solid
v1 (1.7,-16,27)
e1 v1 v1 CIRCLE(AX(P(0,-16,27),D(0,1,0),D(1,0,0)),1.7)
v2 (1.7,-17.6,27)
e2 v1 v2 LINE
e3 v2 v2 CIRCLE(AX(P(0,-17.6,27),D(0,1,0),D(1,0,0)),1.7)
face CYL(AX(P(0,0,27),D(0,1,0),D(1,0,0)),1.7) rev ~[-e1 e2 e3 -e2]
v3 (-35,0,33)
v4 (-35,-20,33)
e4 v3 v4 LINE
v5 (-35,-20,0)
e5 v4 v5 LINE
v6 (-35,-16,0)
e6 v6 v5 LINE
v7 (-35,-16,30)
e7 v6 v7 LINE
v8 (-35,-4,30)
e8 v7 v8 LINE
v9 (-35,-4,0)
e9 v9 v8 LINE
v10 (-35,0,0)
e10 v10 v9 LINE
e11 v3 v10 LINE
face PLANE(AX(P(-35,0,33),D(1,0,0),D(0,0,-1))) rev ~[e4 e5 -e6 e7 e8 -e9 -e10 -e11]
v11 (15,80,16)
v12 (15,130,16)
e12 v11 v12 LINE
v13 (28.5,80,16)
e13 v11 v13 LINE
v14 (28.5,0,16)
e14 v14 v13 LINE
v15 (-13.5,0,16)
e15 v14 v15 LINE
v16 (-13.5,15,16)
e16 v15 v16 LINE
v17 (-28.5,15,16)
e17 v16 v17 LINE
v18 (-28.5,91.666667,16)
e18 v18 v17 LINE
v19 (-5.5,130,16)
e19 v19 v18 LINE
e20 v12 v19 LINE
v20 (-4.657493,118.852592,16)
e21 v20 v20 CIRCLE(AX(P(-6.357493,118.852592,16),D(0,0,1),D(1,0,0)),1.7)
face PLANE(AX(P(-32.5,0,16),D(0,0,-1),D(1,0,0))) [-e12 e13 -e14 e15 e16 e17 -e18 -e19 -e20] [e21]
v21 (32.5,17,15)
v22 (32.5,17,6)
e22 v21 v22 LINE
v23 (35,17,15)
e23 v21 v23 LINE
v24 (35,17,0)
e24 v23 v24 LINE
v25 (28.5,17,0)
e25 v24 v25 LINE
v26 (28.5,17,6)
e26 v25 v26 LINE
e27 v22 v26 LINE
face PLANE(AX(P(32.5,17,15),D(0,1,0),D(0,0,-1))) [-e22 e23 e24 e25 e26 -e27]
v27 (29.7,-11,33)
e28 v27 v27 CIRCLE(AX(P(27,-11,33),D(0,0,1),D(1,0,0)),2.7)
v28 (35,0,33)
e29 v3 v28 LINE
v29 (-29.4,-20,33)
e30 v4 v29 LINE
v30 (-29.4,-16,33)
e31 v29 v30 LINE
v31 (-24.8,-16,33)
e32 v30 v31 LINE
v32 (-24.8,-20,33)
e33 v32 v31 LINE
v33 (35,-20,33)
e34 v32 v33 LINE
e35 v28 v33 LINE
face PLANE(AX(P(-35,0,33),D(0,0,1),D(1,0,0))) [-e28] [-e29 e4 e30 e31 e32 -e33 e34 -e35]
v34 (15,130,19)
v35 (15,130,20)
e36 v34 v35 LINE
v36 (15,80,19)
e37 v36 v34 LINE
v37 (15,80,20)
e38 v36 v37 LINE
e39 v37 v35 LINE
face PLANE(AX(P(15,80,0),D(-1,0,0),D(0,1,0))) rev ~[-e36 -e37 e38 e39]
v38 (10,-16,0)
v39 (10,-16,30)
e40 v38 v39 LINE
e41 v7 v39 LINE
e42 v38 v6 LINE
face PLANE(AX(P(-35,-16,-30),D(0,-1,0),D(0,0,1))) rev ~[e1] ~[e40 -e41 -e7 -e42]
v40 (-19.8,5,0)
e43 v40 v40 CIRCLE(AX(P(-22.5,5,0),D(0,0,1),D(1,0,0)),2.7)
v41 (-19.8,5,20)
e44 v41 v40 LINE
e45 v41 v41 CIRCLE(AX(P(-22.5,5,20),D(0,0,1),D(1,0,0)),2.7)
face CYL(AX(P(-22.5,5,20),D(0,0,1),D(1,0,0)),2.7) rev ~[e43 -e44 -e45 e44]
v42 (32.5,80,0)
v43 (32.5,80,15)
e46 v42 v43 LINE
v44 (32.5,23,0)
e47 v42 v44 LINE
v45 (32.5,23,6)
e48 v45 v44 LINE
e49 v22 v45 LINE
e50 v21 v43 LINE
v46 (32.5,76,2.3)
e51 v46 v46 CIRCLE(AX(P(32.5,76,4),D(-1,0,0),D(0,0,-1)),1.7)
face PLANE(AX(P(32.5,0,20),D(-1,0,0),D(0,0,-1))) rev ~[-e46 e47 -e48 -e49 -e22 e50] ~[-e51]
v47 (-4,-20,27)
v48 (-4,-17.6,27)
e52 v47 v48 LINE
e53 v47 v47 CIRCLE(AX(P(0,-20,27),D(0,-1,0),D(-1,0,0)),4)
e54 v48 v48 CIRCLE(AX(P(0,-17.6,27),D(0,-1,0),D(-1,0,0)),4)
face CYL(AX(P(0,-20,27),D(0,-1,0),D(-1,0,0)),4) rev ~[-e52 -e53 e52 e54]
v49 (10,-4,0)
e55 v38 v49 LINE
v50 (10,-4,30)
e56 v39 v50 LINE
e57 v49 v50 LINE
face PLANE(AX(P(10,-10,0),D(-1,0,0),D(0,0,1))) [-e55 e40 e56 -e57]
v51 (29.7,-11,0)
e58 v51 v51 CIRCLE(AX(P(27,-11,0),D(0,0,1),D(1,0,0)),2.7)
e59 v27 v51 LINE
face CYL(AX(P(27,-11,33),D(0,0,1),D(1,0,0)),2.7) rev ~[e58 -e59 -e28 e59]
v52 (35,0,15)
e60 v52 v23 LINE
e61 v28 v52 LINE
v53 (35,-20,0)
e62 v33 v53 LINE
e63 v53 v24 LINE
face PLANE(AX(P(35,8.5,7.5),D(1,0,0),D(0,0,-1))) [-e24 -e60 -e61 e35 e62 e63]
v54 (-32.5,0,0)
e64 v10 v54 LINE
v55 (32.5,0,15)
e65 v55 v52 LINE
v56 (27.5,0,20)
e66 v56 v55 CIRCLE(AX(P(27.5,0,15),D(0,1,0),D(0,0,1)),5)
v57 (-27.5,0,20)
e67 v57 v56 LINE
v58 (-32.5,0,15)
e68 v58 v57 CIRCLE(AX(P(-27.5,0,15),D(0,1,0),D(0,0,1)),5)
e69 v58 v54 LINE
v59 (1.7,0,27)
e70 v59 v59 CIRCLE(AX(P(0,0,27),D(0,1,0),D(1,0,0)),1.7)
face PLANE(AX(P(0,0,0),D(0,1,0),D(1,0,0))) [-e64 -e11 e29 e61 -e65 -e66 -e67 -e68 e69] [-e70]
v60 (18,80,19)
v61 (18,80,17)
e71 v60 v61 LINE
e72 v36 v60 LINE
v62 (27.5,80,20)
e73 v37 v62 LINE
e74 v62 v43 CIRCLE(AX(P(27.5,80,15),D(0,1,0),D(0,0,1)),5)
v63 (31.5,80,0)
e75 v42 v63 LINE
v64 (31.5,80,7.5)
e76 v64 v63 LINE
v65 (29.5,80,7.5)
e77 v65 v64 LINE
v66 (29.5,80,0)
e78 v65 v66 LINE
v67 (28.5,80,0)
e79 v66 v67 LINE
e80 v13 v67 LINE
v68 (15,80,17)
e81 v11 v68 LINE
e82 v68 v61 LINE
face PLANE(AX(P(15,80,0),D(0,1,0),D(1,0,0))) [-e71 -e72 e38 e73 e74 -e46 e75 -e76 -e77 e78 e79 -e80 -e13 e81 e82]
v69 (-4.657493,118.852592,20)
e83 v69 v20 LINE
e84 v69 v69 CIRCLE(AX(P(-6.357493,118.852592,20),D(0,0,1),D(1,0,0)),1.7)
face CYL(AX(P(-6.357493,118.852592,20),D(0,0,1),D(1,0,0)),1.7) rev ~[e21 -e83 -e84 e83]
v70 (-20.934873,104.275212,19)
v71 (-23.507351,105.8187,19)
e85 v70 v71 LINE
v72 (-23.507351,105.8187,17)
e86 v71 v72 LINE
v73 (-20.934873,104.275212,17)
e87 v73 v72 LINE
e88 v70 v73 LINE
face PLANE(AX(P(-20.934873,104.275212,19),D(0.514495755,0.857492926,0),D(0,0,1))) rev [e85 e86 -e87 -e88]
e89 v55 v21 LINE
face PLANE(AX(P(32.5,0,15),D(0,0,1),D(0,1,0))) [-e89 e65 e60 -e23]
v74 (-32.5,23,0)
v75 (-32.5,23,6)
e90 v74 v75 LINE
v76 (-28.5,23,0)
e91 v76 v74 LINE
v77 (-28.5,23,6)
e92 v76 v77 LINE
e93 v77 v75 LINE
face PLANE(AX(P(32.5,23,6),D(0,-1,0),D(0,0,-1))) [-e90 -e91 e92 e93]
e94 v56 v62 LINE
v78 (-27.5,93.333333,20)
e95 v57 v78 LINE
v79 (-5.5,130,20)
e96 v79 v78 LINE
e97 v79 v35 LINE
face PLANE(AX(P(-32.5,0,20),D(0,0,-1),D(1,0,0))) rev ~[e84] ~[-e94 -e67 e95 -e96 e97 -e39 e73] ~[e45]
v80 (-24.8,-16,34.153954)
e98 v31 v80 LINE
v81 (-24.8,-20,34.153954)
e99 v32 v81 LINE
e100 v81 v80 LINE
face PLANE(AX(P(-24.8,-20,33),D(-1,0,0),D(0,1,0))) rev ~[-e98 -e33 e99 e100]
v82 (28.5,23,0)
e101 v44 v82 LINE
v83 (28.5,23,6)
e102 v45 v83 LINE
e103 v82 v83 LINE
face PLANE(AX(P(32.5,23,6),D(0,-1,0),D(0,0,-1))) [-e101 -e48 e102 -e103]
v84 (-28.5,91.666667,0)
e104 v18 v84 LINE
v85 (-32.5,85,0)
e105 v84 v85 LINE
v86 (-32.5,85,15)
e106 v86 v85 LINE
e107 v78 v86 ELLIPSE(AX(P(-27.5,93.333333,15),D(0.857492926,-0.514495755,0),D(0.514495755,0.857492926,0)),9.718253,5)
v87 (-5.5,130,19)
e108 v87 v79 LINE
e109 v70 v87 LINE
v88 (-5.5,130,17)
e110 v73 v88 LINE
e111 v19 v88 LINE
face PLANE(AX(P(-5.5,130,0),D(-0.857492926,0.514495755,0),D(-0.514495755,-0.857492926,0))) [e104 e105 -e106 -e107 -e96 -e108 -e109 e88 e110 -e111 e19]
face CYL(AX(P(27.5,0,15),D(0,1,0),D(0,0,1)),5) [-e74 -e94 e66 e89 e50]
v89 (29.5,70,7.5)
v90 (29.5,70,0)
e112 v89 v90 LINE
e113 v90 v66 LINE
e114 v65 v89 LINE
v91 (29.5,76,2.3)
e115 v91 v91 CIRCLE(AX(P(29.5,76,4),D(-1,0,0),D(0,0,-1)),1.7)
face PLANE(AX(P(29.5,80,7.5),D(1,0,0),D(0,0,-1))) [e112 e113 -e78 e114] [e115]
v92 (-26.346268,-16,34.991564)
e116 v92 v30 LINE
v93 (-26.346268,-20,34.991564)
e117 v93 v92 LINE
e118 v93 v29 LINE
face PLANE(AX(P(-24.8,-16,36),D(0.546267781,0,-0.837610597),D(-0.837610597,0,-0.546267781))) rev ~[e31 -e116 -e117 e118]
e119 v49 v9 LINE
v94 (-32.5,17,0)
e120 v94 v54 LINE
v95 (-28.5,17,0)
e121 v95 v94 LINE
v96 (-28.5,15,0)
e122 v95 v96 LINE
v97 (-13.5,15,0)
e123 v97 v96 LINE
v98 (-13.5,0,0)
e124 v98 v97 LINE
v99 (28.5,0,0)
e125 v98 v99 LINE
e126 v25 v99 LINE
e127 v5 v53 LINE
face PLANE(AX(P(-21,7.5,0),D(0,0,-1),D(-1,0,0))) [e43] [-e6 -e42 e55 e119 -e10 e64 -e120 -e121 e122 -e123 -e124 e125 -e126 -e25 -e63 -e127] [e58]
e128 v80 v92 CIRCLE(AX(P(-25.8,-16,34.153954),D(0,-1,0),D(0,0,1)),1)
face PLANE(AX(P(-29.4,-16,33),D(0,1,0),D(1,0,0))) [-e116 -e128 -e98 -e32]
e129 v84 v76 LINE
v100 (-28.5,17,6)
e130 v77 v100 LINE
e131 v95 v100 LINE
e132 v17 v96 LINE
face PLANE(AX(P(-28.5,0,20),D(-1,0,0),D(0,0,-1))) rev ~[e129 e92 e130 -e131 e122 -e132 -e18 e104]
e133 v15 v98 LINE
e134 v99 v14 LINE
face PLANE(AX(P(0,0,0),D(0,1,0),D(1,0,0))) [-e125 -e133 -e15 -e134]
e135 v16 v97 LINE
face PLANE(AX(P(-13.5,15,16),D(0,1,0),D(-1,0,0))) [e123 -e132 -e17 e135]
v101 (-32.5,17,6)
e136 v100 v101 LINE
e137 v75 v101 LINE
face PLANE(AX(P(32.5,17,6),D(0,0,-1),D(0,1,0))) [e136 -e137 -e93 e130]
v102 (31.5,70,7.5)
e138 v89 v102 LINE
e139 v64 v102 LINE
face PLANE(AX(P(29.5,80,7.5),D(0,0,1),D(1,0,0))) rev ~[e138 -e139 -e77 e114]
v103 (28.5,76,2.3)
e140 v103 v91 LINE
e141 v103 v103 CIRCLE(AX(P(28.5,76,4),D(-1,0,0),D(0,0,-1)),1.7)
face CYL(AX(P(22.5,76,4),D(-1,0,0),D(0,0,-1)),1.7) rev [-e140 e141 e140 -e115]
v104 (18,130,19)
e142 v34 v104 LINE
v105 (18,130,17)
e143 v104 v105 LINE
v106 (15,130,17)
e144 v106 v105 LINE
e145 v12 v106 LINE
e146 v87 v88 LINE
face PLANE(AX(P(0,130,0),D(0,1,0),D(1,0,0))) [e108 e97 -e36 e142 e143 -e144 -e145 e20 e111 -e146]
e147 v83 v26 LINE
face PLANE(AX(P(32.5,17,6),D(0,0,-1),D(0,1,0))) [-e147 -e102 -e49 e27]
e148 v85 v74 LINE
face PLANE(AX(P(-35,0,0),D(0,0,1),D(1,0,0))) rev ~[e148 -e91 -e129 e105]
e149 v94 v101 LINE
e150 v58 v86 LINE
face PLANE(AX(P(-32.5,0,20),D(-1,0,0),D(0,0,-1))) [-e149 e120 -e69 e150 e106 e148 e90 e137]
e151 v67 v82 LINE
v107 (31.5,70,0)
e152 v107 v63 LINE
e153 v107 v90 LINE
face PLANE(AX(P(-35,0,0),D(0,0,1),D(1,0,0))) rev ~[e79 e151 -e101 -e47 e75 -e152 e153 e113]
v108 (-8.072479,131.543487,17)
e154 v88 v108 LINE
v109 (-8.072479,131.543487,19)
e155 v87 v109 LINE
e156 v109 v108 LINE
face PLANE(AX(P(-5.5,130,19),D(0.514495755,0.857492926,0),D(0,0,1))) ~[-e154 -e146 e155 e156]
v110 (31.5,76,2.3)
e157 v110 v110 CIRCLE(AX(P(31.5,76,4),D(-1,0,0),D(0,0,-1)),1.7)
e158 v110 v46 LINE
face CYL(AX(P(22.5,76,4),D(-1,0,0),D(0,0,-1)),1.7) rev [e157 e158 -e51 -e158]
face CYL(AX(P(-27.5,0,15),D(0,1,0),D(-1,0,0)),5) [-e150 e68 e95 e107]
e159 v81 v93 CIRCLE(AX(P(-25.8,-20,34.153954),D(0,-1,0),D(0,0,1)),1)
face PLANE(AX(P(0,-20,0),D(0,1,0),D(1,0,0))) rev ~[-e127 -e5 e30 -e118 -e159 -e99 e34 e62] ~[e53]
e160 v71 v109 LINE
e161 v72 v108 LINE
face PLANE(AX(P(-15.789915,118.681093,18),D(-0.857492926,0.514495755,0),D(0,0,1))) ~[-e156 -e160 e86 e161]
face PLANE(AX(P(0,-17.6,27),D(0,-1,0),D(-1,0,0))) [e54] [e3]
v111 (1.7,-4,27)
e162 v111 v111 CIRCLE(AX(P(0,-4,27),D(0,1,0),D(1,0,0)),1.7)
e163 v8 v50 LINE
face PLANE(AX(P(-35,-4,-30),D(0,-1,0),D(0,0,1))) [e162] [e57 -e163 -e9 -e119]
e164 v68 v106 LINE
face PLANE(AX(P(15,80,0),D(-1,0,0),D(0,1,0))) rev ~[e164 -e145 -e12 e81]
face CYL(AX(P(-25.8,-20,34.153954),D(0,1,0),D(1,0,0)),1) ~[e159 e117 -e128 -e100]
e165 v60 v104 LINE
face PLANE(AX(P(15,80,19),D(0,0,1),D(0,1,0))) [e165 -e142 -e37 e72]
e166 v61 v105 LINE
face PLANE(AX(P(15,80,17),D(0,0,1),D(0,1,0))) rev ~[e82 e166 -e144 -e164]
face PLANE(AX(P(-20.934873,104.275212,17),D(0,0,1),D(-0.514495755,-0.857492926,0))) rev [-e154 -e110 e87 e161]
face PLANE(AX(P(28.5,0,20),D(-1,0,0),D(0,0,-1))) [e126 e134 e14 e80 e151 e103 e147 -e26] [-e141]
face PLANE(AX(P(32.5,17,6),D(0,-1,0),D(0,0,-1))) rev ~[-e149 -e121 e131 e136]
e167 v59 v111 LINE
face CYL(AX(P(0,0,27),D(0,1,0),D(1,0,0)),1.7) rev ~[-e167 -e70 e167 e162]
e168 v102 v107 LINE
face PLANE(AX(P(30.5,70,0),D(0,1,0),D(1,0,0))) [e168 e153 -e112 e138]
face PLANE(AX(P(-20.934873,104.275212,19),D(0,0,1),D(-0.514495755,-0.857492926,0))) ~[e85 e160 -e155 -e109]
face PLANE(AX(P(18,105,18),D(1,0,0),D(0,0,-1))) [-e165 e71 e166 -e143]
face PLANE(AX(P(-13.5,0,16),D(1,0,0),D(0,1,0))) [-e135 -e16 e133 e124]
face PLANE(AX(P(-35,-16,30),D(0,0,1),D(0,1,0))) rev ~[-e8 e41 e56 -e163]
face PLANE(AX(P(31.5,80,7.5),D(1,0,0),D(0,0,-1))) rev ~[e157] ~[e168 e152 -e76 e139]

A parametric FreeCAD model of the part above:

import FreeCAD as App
import Part
import Sketcher


def edges_at(feature, points):
    """Names of the edges that pass closest to the given points."""
    edges = feature.Shape.Edges
    near = lambda p: min(range(len(edges)), key=lambda i: edges[i].distToShape(Part.Vertex(*p))[0])
    return sorted({f"Edge{near(p) + 1}" for p in points})


def faces_at(feature, points):
    """Names of the faces that lie closest to the given points."""
    faces = feature.Shape.Faces
    near = lambda p: min(range(len(faces)), key=lambda i: faces[i].distToShape(Part.Vertex(*p))[0])
    return sorted({f"Face{near(p) + 1}" for p in points})

doc = App.newDocument("Part")
body = doc.addObject("PartDesign::Body", "Body")

# Sketch on XZ plane
sketch1 = body.newObject("Sketcher::SketchObject", "Sketch")
sketch1.AttachmentSupport = (doc.getObject("XZ_Plane"), [""])
sketch1.MapMode = "FlatFace"
sketch1.addGeometry([
    Part.LineSegment(App.Vector(-32, -20, 0), App.Vector(-32, 20, 0)),
    Part.LineSegment(App.Vector(-32, 20, 0), App.Vector(32, 20, 0)),
    Part.LineSegment(App.Vector(32, 20, 0), App.Vector(32, -20, 0)),
    Part.LineSegment(App.Vector(32, -20, 0), App.Vector(-32, -20, 0)),
], False)
sketch1.addConstraint([
    Sketcher.Constraint("Coincident", 0, 2, 1, 1),
    Sketcher.Constraint("Coincident", 1, 2, 2, 1),
    Sketcher.Constraint("Coincident", 2, 2, 3, 1),
    Sketcher.Constraint("Coincident", 3, 2, 0, 1),
    Sketcher.Constraint("Vertical", 0),
    Sketcher.Constraint("Horizontal", 1),
    Sketcher.Constraint("Vertical", 2),
    Sketcher.Constraint("Horizontal", 3),
    Sketcher.Constraint("Symmetric", 0, 2, 2, 2, -1, 1),
    Sketcher.Constraint("DistanceX", 1, 1, 1, 2, 65.0),
    Sketcher.Constraint("DistanceY", 0, 1, 0, 2, 40.0),
])
pad1 = body.newObject("PartDesign::Pad", "Pad")
pad1.Profile = sketch1
pad1.Length = 130
pad1.Reversed = True
doc.recompute()

thickness = body.newObject("PartDesign::Thickness", "Thickness")
thickness.Base = (pad1, faces_at(pad1, [(0, 130, 0), (0, 0, 0)]))
thickness.Value = 4
thickness.Reversed = True
thickness.Join = "Intersection"
doc.recompute()

fillet = body.newObject("PartDesign::Fillet", "Fillet")
fillet.Base = (thickness, edges_at(thickness, [
    (32.5, 65, 20),
    (-32.5, 65, 20),
    (-32.5, 65, -20),
    (32.5, 65, -20),
]))
fillet.Radius = 5

# Sketch on XY plane
sketch2 = body.newObject("Sketcher::SketchObject", "Sketch001")
sketch2.AttachmentSupport = (doc.getObject("XY_Plane"), [""])
sketch2.MapMode = "FlatFace"
sketch2.addGeometry([
    Part.LineSegment(App.Vector(-32, 85, 0), App.Vector(-6, 130, 0)),
    Part.LineSegment(App.Vector(-6, 130, 0), App.Vector(-32, 130, 0)),
    Part.LineSegment(App.Vector(-32, 130, 0), App.Vector(-32, 85, 0)),
], False)
sketch2.addConstraint([
    Sketcher.Constraint("Coincident", 0, 2, 1, 1),
    Sketcher.Constraint("Coincident", 1, 2, 2, 1),
    Sketcher.Constraint("Coincident", 2, 2, 0, 1),
    Sketcher.Constraint("Horizontal", 1),
    Sketcher.Constraint("Vertical", 2),
    Sketcher.Constraint("DistanceX", 1, 2, 1, 1, 27.0),
    Sketcher.Constraint("DistanceY", 2, 2, 2, 1, 45.0),
    Sketcher.Constraint("DistanceY", -1, 1, 0, 2, 130.0),
    Sketcher.Constraint("DistanceX", 0, 2, -1, 1, 5.5),
])
pocket1 = body.newObject("PartDesign::Pocket", "Pocket")
pocket1.Profile = sketch2
pocket1.Type = "ThroughAll"
pocket1.Midplane = True

# Sketch on XY plane
sketch3 = body.newObject("Sketcher::SketchObject", "Sketch002")
sketch3.AttachmentSupport = (doc.getObject("XY_Plane"), [""])
sketch3.MapMode = "FlatFace"
sketch3.addGeometry([
    Part.LineSegment(App.Vector(15, 130, 0), App.Vector(15, 80, 0)),
    Part.LineSegment(App.Vector(15, 80, 0), App.Vector(32, 80, 0)),
    Part.LineSegment(App.Vector(32, 80, 0), App.Vector(32, 130, 0)),
    Part.LineSegment(App.Vector(32, 130, 0), App.Vector(15, 130, 0)),
], False)
sketch3.addConstraint([
    Sketcher.Constraint("Coincident", 0, 2, 1, 1),
    Sketcher.Constraint("Coincident", 1, 2, 2, 1),
    Sketcher.Constraint("Coincident", 2, 2, 3, 1),
    Sketcher.Constraint("Coincident", 3, 2, 0, 1),
    Sketcher.Constraint("Vertical", 0),
    Sketcher.Constraint("Horizontal", 1),
    Sketcher.Constraint("Vertical", 2),
    Sketcher.Constraint("Horizontal", 3),
    Sketcher.Constraint("DistanceY", 0, 2, 0, 1, 50.0),
    Sketcher.Constraint("DistanceX", 1, 1, 1, 2, 17.5),
    Sketcher.Constraint("DistanceX", -1, 1, 0, 2, 15.0),
    Sketcher.Constraint("DistanceY", -1, 1, 0, 2, 80.0),
])
pocket2 = body.newObject("PartDesign::Pocket", "Pocket001")
pocket2.Profile = sketch3
pocket2.Type = "ThroughAll"
pocket2.Midplane = True

# Sketch on YZ plane
sketch4 = body.newObject("Sketcher::SketchObject", "Sketch003")
sketch4.AttachmentSupport = (doc.getObject("YZ_Plane"), [""])
sketch4.MapMode = "FlatFace"
sketch4.AttachmentOffset = App.Placement(App.Vector(0, 0, 15), App.Rotation())
sketch4.addGeometry([
    Part.LineSegment(App.Vector(130, 19, 0), App.Vector(80, 19, 0)),
    Part.LineSegment(App.Vector(80, 19, 0), App.Vector(80, 17, 0)),
    Part.LineSegment(App.Vector(80, 17, 0), App.Vector(130, 17, 0)),
    Part.LineSegment(App.Vector(130, 17, 0), App.Vector(130, 19, 0)),
], False)
sketch4.addConstraint([
    Sketcher.Constraint("Coincident", 0, 2, 1, 1),
    Sketcher.Constraint("Coincident", 1, 2, 2, 1),
    Sketcher.Constraint("Coincident", 2, 2, 3, 1),
    Sketcher.Constraint("Coincident", 3, 2, 0, 1),
    Sketcher.Constraint("Horizontal", 0),
    Sketcher.Constraint("Vertical", 1),
    Sketcher.Constraint("Horizontal", 2),
    Sketcher.Constraint("Vertical", 3),
    Sketcher.Constraint("DistanceX", 0, 2, 0, 1, 50.0),
    Sketcher.Constraint("DistanceY", 1, 2, 1, 1, 2.0),
    Sketcher.Constraint("DistanceX", -1, 1, 0, 2, 80.0),
    Sketcher.Constraint("DistanceY", -1, 1, 0, 2, 19.0),
])
pad2 = body.newObject("PartDesign::Pad", "Pad001")
pad2.Profile = sketch4
pad2.Length = 3
doc.recompute()

mirrored = body.newObject("PartDesign::Mirrored", "Mirrored")
mirrored.Originals = [pad2]
mirrored.MirrorPlane = (doc.getObject("XY_Plane"), [""])
body.Tip = mirrored

# Sketch on an angled plane
sketch5 = body.newObject("Sketcher::SketchObject", "Sketch004")
sketch5.Placement = App.Placement(App.Vector(-61.397059, 36.838235, 0), App.Rotation(App.Vector(0, 0, 1), App.Vector(0.514495755, 0.857492926, 0), App.Vector(-0.857492926, 0.514495755, 0), "ZXY"))
sketch5.addGeometry([
    Part.LineSegment(App.Vector(-19, 108.6, 0), App.Vector(-19, 78.6, 0)),
    Part.LineSegment(App.Vector(-19, 78.6, 0), App.Vector(-17, 78.6, 0)),
    Part.LineSegment(App.Vector(-17, 78.6, 0), App.Vector(-17, 108.6, 0)),
    Part.LineSegment(App.Vector(-17, 108.6, 0), App.Vector(-19, 108.6, 0)),
], False)
sketch5.addConstraint([
    Sketcher.Constraint("Coincident", 0, 2, 1, 1),
    Sketcher.Constraint("Coincident", 1, 2, 2, 1),
    Sketcher.Constraint("Coincident", 2, 2, 3, 1),
    Sketcher.Constraint("Coincident", 3, 2, 0, 1),
    Sketcher.Constraint("Vertical", 0),
    Sketcher.Constraint("Horizontal", 1),
    Sketcher.Constraint("Vertical", 2),
    Sketcher.Constraint("Horizontal", 3),
    Sketcher.Constraint("DistanceX", 1, 1, 1, 2, 2.0),
    Sketcher.Constraint("DistanceY", 0, 2, 0, 1, 30.0),
    Sketcher.Constraint("DistanceX", 0, 2, -1, 1, 19.0),
    Sketcher.Constraint("DistanceY", -1, 1, 0, 2, 78.644354),
])
pad3 = body.newObject("PartDesign::Pad", "Pad002")
pad3.Profile = sketch5
pad3.Length = 3
doc.recompute()

mirrored2 = body.newObject("PartDesign::Mirrored", "Mirrored001")
mirrored2.Originals = [pad3]
mirrored2.MirrorPlane = (doc.getObject("XY_Plane"), [""])
body.Tip = mirrored2

# Sketch on XZ plane
sketch6 = body.newObject("Sketcher::SketchObject", "Sketch005")
sketch6.AttachmentSupport = (doc.getObject("XZ_Plane"), [""])
sketch6.MapMode = "FlatFace"
sketch6.addGeometry([
    Part.LineSegment(App.Vector(-35, -33, 0), App.Vector(-35, 33, 0)),
    Part.LineSegment(App.Vector(-35, 33, 0), App.Vector(35, 33, 0)),
    Part.LineSegment(App.Vector(35, 33, 0), App.Vector(35, -33, 0)),
    Part.LineSegment(App.Vector(35, -33, 0), App.Vector(-35, -33, 0)),
], False)
sketch6.addConstraint([
    Sketcher.Constraint("Coincident", 0, 2, 1, 1),
    Sketcher.Constraint("Coincident", 1, 2, 2, 1),
    Sketcher.Constraint("Coincident", 2, 2, 3, 1),
    Sketcher.Constraint("Coincident", 3, 2, 0, 1),
    Sketcher.Constraint("Vertical", 0),
    Sketcher.Constraint("Horizontal", 1),
    Sketcher.Constraint("Vertical", 2),
    Sketcher.Constraint("Horizontal", 3),
    Sketcher.Constraint("Symmetric", 0, 2, 2, 2, -1, 1),
    Sketcher.Constraint("DistanceX", 1, 1, 1, 2, 70.0),
    Sketcher.Constraint("DistanceY", 0, 1, 0, 2, 66.0),
])
pad4 = body.newObject("PartDesign::Pad", "Pad003")
pad4.Profile = sketch6
pad4.Length = 20

# Sketch on YZ plane
sketch7 = body.newObject("Sketcher::SketchObject", "Sketch006")
sketch7.AttachmentSupport = (doc.getObject("YZ_Plane"), [""])
sketch7.MapMode = "FlatFace"
sketch7.AttachmentOffset = App.Placement(App.Vector(0, 0, -35), App.Rotation())
sketch7.addGeometry([
    Part.LineSegment(App.Vector(-4, -30, 0), App.Vector(-16, -30, 0)),
    Part.LineSegment(App.Vector(-16, -30, 0), App.Vector(-16, 30, 0)),
    Part.LineSegment(App.Vector(-16, 30, 0), App.Vector(-4, 30, 0)),
    Part.LineSegment(App.Vector(-4, 30, 0), App.Vector(-4, -30, 0)),
], False)
sketch7.addConstraint([
    Sketcher.Constraint("Coincident", 0, 2, 1, 1),
    Sketcher.Constraint("Coincident", 1, 2, 2, 1),
    Sketcher.Constraint("Coincident", 2, 2, 3, 1),
    Sketcher.Constraint("Coincident", 3, 2, 0, 1),
    Sketcher.Constraint("Horizontal", 0),
    Sketcher.Constraint("Vertical", 1),
    Sketcher.Constraint("Horizontal", 2),
    Sketcher.Constraint("Vertical", 3),
    Sketcher.Constraint("DistanceX", 0, 2, 0, 1, 12.0),
    Sketcher.Constraint("DistanceY", 1, 1, 1, 2, 60.0),
    Sketcher.Constraint("DistanceX", 0, 2, -1, 1, 16.0),
    Sketcher.Constraint("DistanceY", 0, 2, -1, 1, 30.0),
])
pocket3 = body.newObject("PartDesign::Pocket", "Pocket002")
pocket3.Profile = sketch7
pocket3.Length = 45
pocket3.Reversed = True

# Sketch on XZ plane
sketch8 = body.newObject("Sketcher::SketchObject", "Sketch007")
sketch8.AttachmentSupport = (doc.getObject("XZ_Plane"), [""])
sketch8.MapMode = "FlatFace"
sketch8.AttachmentOffset = App.Placement(App.Vector(0, 0, -80), App.Rotation())
sketch8.addGeometry([
    Part.LineSegment(App.Vector(29.5, -7.5, 0), App.Vector(29.5, 7.5, 0)),
    Part.LineSegment(App.Vector(29.5, 7.5, 0), App.Vector(31.5, 7.5, 0)),
    Part.LineSegment(App.Vector(31.5, 7.5, 0), App.Vector(31.5, -7.5, 0)),
    Part.LineSegment(App.Vector(31.5, -7.5, 0), App.Vector(29.5, -7.5, 0)),
], False)
sketch8.addConstraint([
    Sketcher.Constraint("Coincident", 0, 2, 1, 1),
    Sketcher.Constraint("Coincident", 1, 2, 2, 1),
    Sketcher.Constraint("Coincident", 2, 2, 3, 1),
    Sketcher.Constraint("Coincident", 3, 2, 0, 1),
    Sketcher.Constraint("Vertical", 0),
    Sketcher.Constraint("Horizontal", 1),
    Sketcher.Constraint("Vertical", 2),
    Sketcher.Constraint("Horizontal", 3),
    Sketcher.Constraint("DistanceX", 1, 1, 1, 2, 2.0),
    Sketcher.Constraint("DistanceY", 0, 1, 0, 2, 15.0),
    Sketcher.Constraint("DistanceX", -1, 1, 0, 2, 29.5),
    Sketcher.Constraint("DistanceY", -1, 1, 0, 2, 7.5),
])
pocket4 = body.newObject("PartDesign::Pocket", "Pocket003")
pocket4.Profile = sketch8
pocket4.Length = 10
pocket4.Reversed = True

# Sketch on YZ plane
sketch9 = body.newObject("Sketcher::SketchObject", "Sketch008")
sketch9.AttachmentSupport = (doc.getObject("YZ_Plane"), [""])
sketch9.MapMode = "FlatFace"
sketch9.AttachmentOffset = App.Placement(App.Vector(0, 0, 22.5), App.Rotation())
sketch9.addGeometry(Part.Circle(App.Vector(76, 4, 0), App.Vector(0, 0, 1), 1.7), False)
sketch9.addConstraint([
    Sketcher.Constraint("Diameter", 0, 3.4),
    Sketcher.Constraint("DistanceX", -1, 1, 0, 3, 76.0),
    Sketcher.Constraint("DistanceY", -1, 1, 0, 3, 4.0),
])
pocket5 = body.newObject("PartDesign::Pocket", "Pocket004")
pocket5.Profile = sketch9
pocket5.Length = 13.5
pocket5.Reversed = True
doc.recompute()

mirrored3 = body.newObject("PartDesign::Mirrored", "Mirrored002")
mirrored3.Originals = [pocket5]
mirrored3.MirrorPlane = (doc.getObject("XY_Plane"), [""])
body.Tip = mirrored3

# Sketch on XZ plane
sketch10 = body.newObject("Sketcher::SketchObject", "Sketch009")
sketch10.AttachmentSupport = (doc.getObject("XZ_Plane"), [""])
sketch10.MapMode = "FlatFace"
sketch10.addGeometry([
    Part.LineSegment(App.Vector(-35, -33, 0), App.Vector(-35, 0, 0)),
    Part.LineSegment(App.Vector(-35, 0, 0), App.Vector(35, 0, 0)),
    Part.LineSegment(App.Vector(35, 0, 0), App.Vector(35, -33, 0)),
    Part.LineSegment(App.Vector(35, -33, 0), App.Vector(-35, -33, 0)),
], False)
sketch10.addConstraint([
    Sketcher.Constraint("Coincident", 0, 2, 1, 1),
    Sketcher.Constraint("Coincident", 1, 2, 2, 1),
    Sketcher.Constraint("Coincident", 2, 2, 3, 1),
    Sketcher.Constraint("Coincident", 3, 2, 0, 1),
    Sketcher.Constraint("Vertical", 0),
    Sketcher.Constraint("Horizontal", 1),
    Sketcher.Constraint("Vertical", 2),
    Sketcher.Constraint("Horizontal", 3),
    Sketcher.Constraint("Symmetric", 0, 2, 1, 2, -1, 1),
    Sketcher.Constraint("DistanceX", 1, 1, 1, 2, 70.0),
    Sketcher.Constraint("DistanceY", 0, 1, 0, 2, 33.0),
])
pocket6 = body.newObject("PartDesign::Pocket", "Pocket005")
pocket6.Profile = sketch10
pocket6.Type = "ThroughAll"
pocket6.Midplane = True

# Sketch on XY plane
sketch11 = body.newObject("Sketcher::SketchObject", "Sketch010")
sketch11.AttachmentSupport = (doc.getObject("XY_Plane"), [""])
sketch11.MapMode = "FlatFace"
sketch11.AttachmentOffset = App.Placement(App.Vector(0, 0, 33), App.Rotation())
sketch11.addGeometry(Part.Circle(App.Vector(27, -11, 0), App.Vector(0, 0, 1), 2.7), False)
sketch11.addConstraint([
    Sketcher.Constraint("Diameter", 0, 5.4),
    Sketcher.Constraint("DistanceX", -1, 1, 0, 3, 27.0),
    Sketcher.Constraint("DistanceY", 0, 3, -1, 1, 11.0),
])
pocket7 = body.newObject("PartDesign::Pocket", "Pocket006")
pocket7.Profile = sketch11
pocket7.Type = "ThroughAll"
pocket7.Midplane = True

# Sketch on XZ plane
sketch12 = body.newObject("Sketcher::SketchObject", "Sketch011")
sketch12.AttachmentSupport = (doc.getObject("XZ_Plane"), [""])
sketch12.MapMode = "FlatFace"
sketch12.addGeometry(Part.Circle(App.Vector(0, 27, 0), App.Vector(0, 0, 1), 1.7), False)
sketch12.addConstraint([
    Sketcher.Constraint("PointOnObject", 0, 3, -2),
    Sketcher.Constraint("Diameter", 0, 3.4),
    Sketcher.Constraint("DistanceY", -1, 1, 0, 3, 27.0),
])
pocket8 = body.newObject("PartDesign::Pocket", "Pocket007")
pocket8.Profile = sketch12
pocket8.Type = "ThroughAll"
pocket8.Midplane = True

# Sketch on YZ plane
sketch13 = body.newObject("Sketcher::SketchObject", "Sketch012")
sketch13.AttachmentSupport = (doc.getObject("YZ_Plane"), [""])
sketch13.MapMode = "FlatFace"
sketch13.AttachmentOffset = App.Placement(App.Vector(0, 0, 32.5), App.Rotation())
sketch13.addGeometry([
    Part.LineSegment(App.Vector(23, 6, 0), App.Vector(17, 6, 0)),
    Part.LineSegment(App.Vector(17, 6, 0), App.Vector(17, 0, 0)),
    Part.LineSegment(App.Vector(17, 0, 0), App.Vector(23, 0, 0)),
    Part.LineSegment(App.Vector(23, 0, 0), App.Vector(23, 6, 0)),
], False)
sketch13.addConstraint([
    Sketcher.Constraint("Coincident", 0, 2, 1, 1),
    Sketcher.Constraint("Coincident", 1, 2, 2, 1),
    Sketcher.Constraint("Coincident", 2, 2, 3, 1),
    Sketcher.Constraint("Coincident", 3, 2, 0, 1),
    Sketcher.Constraint("Horizontal", 0),
    Sketcher.Constraint("Vertical", 1),
    Sketcher.Constraint("Horizontal", 2),
    Sketcher.Constraint("Vertical", 3),
    Sketcher.Constraint("PointOnObject", 1, 2, -1),
    Sketcher.Constraint("Equal", 2, 1),
    Sketcher.Constraint("DistanceX", 0, 2, 0, 1, 6.0),
    Sketcher.Constraint("DistanceX", -1, 1, 0, 2, 17.0),
])
pocket9 = body.newObject("PartDesign::Pocket", "Pocket008")
pocket9.Profile = sketch13
pocket9.Type = "ThroughAll"
pocket9.Midplane = True

# Sketch on YZ plane
sketch14 = body.newObject("Sketcher::SketchObject", "Sketch013")
sketch14.AttachmentSupport = (doc.getObject("YZ_Plane"), [""])
sketch14.MapMode = "FlatFace"
sketch14.AttachmentOffset = App.Placement(App.Vector(0, 0, 32.5), App.Rotation())
sketch14.addGeometry([
    Part.LineSegment(App.Vector(17, 15, 0), App.Vector(0, 15, 0)),
    Part.LineSegment(App.Vector(0, 15, 0), App.Vector(0, 0, 0)),
    Part.LineSegment(App.Vector(0, 0, 0), App.Vector(17, 0, 0)),
    Part.LineSegment(App.Vector(17, 0, 0), App.Vector(17, 15, 0)),
], False)
sketch14.addConstraint([
    Sketcher.Constraint("Coincident", 0, 2, 1, 1),
    Sketcher.Constraint("Coincident", 1, 2, 2, 1),
    Sketcher.Constraint("Coincident", 2, 2, 3, 1),
    Sketcher.Constraint("Coincident", 3, 2, 0, 1),
    Sketcher.Constraint("Horizontal", 0),
    Sketcher.Constraint("Vertical", 1),
    Sketcher.Constraint("Horizontal", 2),
    Sketcher.Constraint("Vertical", 3),
    Sketcher.Constraint("Coincident", 1, 2, -1, 1),
    Sketcher.Constraint("DistanceX", 0, 2, 0, 1, 17.0),
    Sketcher.Constraint("DistanceY", 1, 2, 1, 1, 15.0),
])
pad5 = body.newObject("PartDesign::Pad", "Pad004")
pad5.Profile = sketch14
pad5.Length = 2.5

# Sketch on XZ plane
sketch15 = body.newObject("Sketcher::SketchObject", "Sketch014")
sketch15.AttachmentSupport = (doc.getObject("XZ_Plane"), [""])
sketch15.MapMode = "FlatFace"
sketch15.AttachmentOffset = App.Placement(App.Vector(0, 0, 20), App.Rotation())
sketch15.addGeometry(Part.Circle(App.Vector(0, 27, 0), App.Vector(0, 0, 1), 4), False)
sketch15.addConstraint([
    Sketcher.Constraint("PointOnObject", 0, 3, -2),
    Sketcher.Constraint("Diameter", 0, 8.0),
    Sketcher.Constraint("DistanceY", -1, 1, 0, 3, 27.0),
])
pocket10 = body.newObject("PartDesign::Pocket", "Pocket009")
pocket10.Profile = sketch15
pocket10.Length = 2.4

# Sketch on XY plane
sketch16 = body.newObject("Sketcher::SketchObject", "Sketch015")
sketch16.AttachmentSupport = (doc.getObject("XY_Plane"), [""])
sketch16.MapMode = "FlatFace"
sketch16.AttachmentOffset = App.Placement(App.Vector(0, 0, 33), App.Rotation())
sketch16.addGeometry([
    Part.LineSegment(App.Vector(-29.4, -16, 0), App.Vector(-29.4, -20, 0)),
    Part.LineSegment(App.Vector(-29.4, -20, 0), App.Vector(-24.8, -20, 0)),
    Part.LineSegment(App.Vector(-24.8, -20, 0), App.Vector(-24.8, -16, 0)),
    Part.LineSegment(App.Vector(-24.8, -16, 0), App.Vector(-29.4, -16, 0)),
], False)
sketch16.addConstraint([
    Sketcher.Constraint("Coincident", 0, 2, 1, 1),
    Sketcher.Constraint("Coincident", 1, 2, 2, 1),
    Sketcher.Constraint("Coincident", 2, 2, 3, 1),
    Sketcher.Constraint("Coincident", 3, 2, 0, 1),
    Sketcher.Constraint("Vertical", 0),
    Sketcher.Constraint("Horizontal", 1),
    Sketcher.Constraint("Vertical", 2),
    Sketcher.Constraint("Horizontal", 3),
    Sketcher.Constraint("DistanceY", 0, 2, 0, 1, 4.0),
    Sketcher.Constraint("DistanceX", 1, 1, 1, 2, 4.6),
    Sketcher.Constraint("DistanceY", 0, 2, -1, 1, 20.0),
    Sketcher.Constraint("DistanceX", 0, 2, -1, 1, 29.4),
])
pad6 = body.newObject("PartDesign::Pad", "Pad005")
pad6.Profile = sketch16
pad6.Length = 3

# Sketch on XZ plane
sketch17 = body.newObject("Sketcher::SketchObject", "Sketch016")
sketch17.AttachmentSupport = (doc.getObject("XZ_Plane"), [""])
sketch17.MapMode = "FlatFace"
sketch17.AttachmentOffset = App.Placement(App.Vector(0, 0, 16), App.Rotation())
sketch17.addGeometry([
    Part.LineSegment(App.Vector(-24.8, 36, 0), App.Vector(-29.4, 33, 0)),
    Part.LineSegment(App.Vector(-29.4, 33, 0), App.Vector(-29.4, 36, 0)),
    Part.LineSegment(App.Vector(-29.4, 36, 0), App.Vector(-24.8, 36, 0)),
], False)
sketch17.addConstraint([
    Sketcher.Constraint("Coincident", 0, 2, 1, 1),
    Sketcher.Constraint("Coincident", 1, 2, 2, 1),
    Sketcher.Constraint("Coincident", 2, 2, 0, 1),
    Sketcher.Constraint("Vertical", 1),
    Sketcher.Constraint("Horizontal", 2),
    Sketcher.Constraint("DistanceY", 1, 1, 1, 2, 3.0),
    Sketcher.Constraint("DistanceX", 2, 1, 2, 2, 4.6),
    Sketcher.Constraint("DistanceY", -1, 1, 0, 2, 33.0),
    Sketcher.Constraint("DistanceX", 0, 2, -1, 1, 29.4),
])
pocket11 = body.newObject("PartDesign::Pocket", "Pocket010")
pocket11.Profile = sketch17
pocket11.Type = "ThroughAll"
pocket11.Reversed = True
doc.recompute()

fillet2 = body.newObject("PartDesign::Fillet", "Fillet001")
fillet2.Base = (pocket11, edges_at(pocket11, [(-24.8, -18, 36)]))
fillet2.Radius = 1

# Sketch on XY plane
sketch18 = body.newObject("Sketcher::SketchObject", "Sketch017")
sketch18.AttachmentSupport = (doc.getObject("XY_Plane"), [""])
sketch18.MapMode = "FlatFace"
sketch18.AttachmentOffset = App.Placement(App.Vector(0, 0, 20), App.Rotation())
sketch18.addGeometry(Part.Circle(App.Vector(-6.4, 118.9, 0), App.Vector(0, 0, 1), 1.7), False)
sketch18.addConstraint([
    Sketcher.Constraint("Diameter", 0, 3.4),
    Sketcher.Constraint("DistanceY", -1, 1, 0, 3, 118.852592),
    Sketcher.Constraint("DistanceX", 0, 3, -1, 1, 6.357493),
])
pocket12 = body.newObject("PartDesign::Pocket", "Pocket011")
pocket12.Profile = sketch18
pocket12.Length = 10

# Sketch on XY plane
sketch19 = body.newObject("Sketcher::SketchObject", "Sketch018")
sketch19.AttachmentSupport = (doc.getObject("XY_Plane"), [""])
sketch19.MapMode = "FlatFace"
sketch19.AttachmentOffset = App.Placement(App.Vector(0, 0, 16), App.Rotation())
sketch19.addGeometry([
    Part.LineSegment(App.Vector(-14, 15, 0), App.Vector(-14, 0, 0)),
    Part.LineSegment(App.Vector(-14, 0, 0), App.Vector(-28, 0, 0)),
    Part.LineSegment(App.Vector(-28, 0, 0), App.Vector(-28, 15, 0)),
    Part.LineSegment(App.Vector(-28, 15, 0), App.Vector(-14, 15, 0)),
], False)
sketch19.addConstraint([
    Sketcher.Constraint("Coincident", 0, 2, 1, 1),
    Sketcher.Constraint("Coincident", 1, 2, 2, 1),
    Sketcher.Constraint("Coincident", 2, 2, 3, 1),
    Sketcher.Constraint("Coincident", 3, 2, 0, 1),
    Sketcher.Constraint("Vertical", 0),
    Sketcher.Constraint("Horizontal", 1),
    Sketcher.Constraint("Vertical", 2),
    Sketcher.Constraint("Horizontal", 3),
    Sketcher.Constraint("PointOnObject", 0, 2, -1),
    Sketcher.Constraint("Equal", 3, 0),
    Sketcher.Constraint("DistanceX", 1, 2, 1, 1, 15.0),
    Sketcher.Constraint("DistanceX", 0, 2, -1, 1, 13.5),
])
pad7 = body.newObject("PartDesign::Pad", "Pad006")
pad7.Profile = sketch19
pad7.Length = 16
pad7.Reversed = True

# Sketch on XY plane
sketch20 = body.newObject("Sketcher::SketchObject", "Sketch019")
sketch20.AttachmentSupport = (doc.getObject("XY_Plane"), [""])
sketch20.MapMode = "FlatFace"
sketch20.AttachmentOffset = App.Placement(App.Vector(0, 0, 20), App.Rotation())
sketch20.addGeometry(Part.Circle(App.Vector(-22.5, 5, 0), App.Vector(0, 0, 1), 2.7), False)
sketch20.addConstraint([
    Sketcher.Constraint("Diameter", 0, 5.4),
    Sketcher.Constraint("DistanceY", -1, 1, 0, 3, 5.0),
    Sketcher.Constraint("DistanceX", 0, 3, -1, 1, 22.5),
])
pocket13 = body.newObject("PartDesign::Pocket", "Pocket012")
pocket13.Profile = sketch20
pocket13.Type = "ThroughAll"
pocket13.Midplane = True

doc.recompute()
